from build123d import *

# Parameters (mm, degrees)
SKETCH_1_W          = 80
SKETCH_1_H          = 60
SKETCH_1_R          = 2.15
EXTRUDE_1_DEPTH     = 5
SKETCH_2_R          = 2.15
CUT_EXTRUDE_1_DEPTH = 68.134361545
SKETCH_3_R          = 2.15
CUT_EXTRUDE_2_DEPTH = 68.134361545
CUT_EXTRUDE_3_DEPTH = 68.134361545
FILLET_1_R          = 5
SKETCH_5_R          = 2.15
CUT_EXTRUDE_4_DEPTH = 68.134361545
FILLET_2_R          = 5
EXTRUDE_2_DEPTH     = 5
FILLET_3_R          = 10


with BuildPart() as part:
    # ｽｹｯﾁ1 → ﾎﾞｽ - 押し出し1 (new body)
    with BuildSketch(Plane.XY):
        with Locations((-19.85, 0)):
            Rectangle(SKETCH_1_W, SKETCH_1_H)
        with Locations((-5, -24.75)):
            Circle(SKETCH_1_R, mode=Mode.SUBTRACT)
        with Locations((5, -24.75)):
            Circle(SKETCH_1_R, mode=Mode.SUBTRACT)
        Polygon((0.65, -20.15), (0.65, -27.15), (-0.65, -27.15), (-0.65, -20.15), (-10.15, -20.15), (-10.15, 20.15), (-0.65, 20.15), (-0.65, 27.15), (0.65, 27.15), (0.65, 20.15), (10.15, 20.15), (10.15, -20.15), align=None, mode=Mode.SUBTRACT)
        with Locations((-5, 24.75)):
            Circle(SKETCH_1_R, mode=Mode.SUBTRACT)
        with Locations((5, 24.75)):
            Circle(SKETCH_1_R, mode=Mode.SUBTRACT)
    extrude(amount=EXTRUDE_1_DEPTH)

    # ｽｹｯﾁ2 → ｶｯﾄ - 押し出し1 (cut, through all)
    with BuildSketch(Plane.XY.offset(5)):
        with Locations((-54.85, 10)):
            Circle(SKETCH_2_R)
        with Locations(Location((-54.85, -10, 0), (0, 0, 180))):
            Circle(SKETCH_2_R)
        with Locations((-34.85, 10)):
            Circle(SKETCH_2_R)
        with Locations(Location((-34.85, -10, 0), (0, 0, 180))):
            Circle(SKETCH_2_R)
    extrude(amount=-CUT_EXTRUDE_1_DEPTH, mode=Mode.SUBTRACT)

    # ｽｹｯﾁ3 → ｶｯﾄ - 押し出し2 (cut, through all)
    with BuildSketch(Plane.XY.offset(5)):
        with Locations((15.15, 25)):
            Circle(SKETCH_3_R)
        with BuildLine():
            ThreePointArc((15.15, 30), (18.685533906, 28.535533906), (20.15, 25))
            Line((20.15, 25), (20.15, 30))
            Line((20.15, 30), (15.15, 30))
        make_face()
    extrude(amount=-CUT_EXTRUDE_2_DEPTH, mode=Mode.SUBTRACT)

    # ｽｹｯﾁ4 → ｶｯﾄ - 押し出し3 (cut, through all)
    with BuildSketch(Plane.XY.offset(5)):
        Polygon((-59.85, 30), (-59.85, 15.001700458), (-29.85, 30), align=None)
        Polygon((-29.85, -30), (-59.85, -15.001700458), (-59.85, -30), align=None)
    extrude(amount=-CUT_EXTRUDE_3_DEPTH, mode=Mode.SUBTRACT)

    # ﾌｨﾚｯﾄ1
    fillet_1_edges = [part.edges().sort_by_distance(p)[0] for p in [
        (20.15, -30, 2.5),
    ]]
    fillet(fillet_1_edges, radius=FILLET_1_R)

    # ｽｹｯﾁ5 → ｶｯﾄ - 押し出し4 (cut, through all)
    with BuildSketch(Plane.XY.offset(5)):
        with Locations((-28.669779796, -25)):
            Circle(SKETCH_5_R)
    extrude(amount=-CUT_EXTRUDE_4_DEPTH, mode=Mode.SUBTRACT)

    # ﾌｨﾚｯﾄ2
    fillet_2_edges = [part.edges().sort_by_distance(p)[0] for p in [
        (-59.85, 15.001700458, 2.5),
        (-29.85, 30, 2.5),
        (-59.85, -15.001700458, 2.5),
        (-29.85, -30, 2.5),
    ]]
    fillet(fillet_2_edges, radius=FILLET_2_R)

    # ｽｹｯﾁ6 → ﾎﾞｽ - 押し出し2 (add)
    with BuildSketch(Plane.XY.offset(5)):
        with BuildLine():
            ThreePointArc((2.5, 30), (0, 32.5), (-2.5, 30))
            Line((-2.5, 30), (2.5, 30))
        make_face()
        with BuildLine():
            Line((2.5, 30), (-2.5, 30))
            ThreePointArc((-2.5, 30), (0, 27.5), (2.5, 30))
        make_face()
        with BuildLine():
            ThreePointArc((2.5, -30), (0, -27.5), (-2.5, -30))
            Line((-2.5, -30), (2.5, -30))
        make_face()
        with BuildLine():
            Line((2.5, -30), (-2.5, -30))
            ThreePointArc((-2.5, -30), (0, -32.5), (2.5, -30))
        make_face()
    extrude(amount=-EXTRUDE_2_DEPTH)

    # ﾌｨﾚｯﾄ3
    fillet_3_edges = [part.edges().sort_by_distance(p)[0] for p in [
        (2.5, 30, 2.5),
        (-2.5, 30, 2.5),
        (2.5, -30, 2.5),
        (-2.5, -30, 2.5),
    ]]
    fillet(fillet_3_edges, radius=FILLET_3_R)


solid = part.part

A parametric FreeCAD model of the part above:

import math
import FreeCAD as App
import Part
import Sketcher
from FreeCAD import Vector


def edges_at(feature, points):
    """Names of the edges that pass closest to the given points."""
    edges = feature.Shape.Edges
    near = lambda p: min(range(len(edges)), key=lambda i: edges[i].distToShape(Part.Vertex(*p))[0])
    return sorted({f"Edge{near(p) + 1}" for p in points})

doc = App.newDocument("Part")
body = doc.addObject("PartDesign::Body", "Body")

# Sketch on XY plane
sketch1 = doc.addObject("Sketcher::SketchObject", "Sketch")
body.addObject(sketch1)
sketch1.AttachmentSupport = (doc.XY_Plane, [""])
sketch1.MapMode = "FlatFace"
sketch1.addGeometry([
    Part.LineSegment(Vector(-59.9, 30, 0), Vector(-59.9, -30, 0)),  # 0
    Part.LineSegment(Vector(-59.9, -30, 0), Vector(20.1, -30, 0)),  # 1
    Part.LineSegment(Vector(20.1, -30, 0), Vector(20.1, 30, 0)),  # 2
    Part.LineSegment(Vector(20.1, 30, 0), Vector(-59.9, 30, 0)),  # 3
    Part.Circle(Vector(-5, -24.8, 0), Vector(0, 0, 1), 2.1),  # 4
    Part.Circle(Vector(5, -24.8, 0), Vector(0, 0, 1), 2.1),  # 5
    Part.Circle(Vector(-5, 24.8, 0), Vector(0, 0, 1), 2.1),  # 6
    Part.LineSegment(Vector(10.2, -20.1, 0), Vector(0.7, -20.1, 0)),  # 7
    Part.LineSegment(Vector(0.7, -20.1, 0), Vector(0.7, -27.1, 0)),  # 8
    Part.LineSegment(Vector(0.7, -27.1, 0), Vector(-0.7, -27.1, 0)),  # 9
    Part.LineSegment(Vector(-0.7, -27.1, 0), Vector(-0.7, -20.1, 0)),  # 10
    Part.LineSegment(Vector(-0.7, -20.1, 0), Vector(-10.2, -20.1, 0)),  # 11
    Part.LineSegment(Vector(-10.2, -20.1, 0), Vector(-10.2, 20.1, 0)),  # 12
    Part.LineSegment(Vector(-10.2, 20.1, 0), Vector(-0.7, 20.1, 0)),  # 13
    Part.LineSegment(Vector(-0.7, 20.1, 0), Vector(-0.7, 27.1, 0)),  # 14
    Part.LineSegment(Vector(-0.7, 27.1, 0), Vector(0.7, 27.1, 0)),  # 15
    Part.LineSegment(Vector(0.7, 27.1, 0), Vector(0.7, 20.1, 0)),  # 16
    Part.LineSegment(Vector(0.7, 20.1, 0), Vector(10.2, 20.1, 0)),  # 17
    Part.LineSegment(Vector(10.2, 20.1, 0), Vector(10.2, -20.1, 0)),  # 18
    Part.Circle(Vector(5, 24.8, 0), Vector(0, 0, 1), 2.1),  # 19
], False)
sketch1.addConstraint([
    Sketcher.Constraint("Coincident", 0, 2, 1, 1),
    Sketcher.Constraint("Coincident", 1, 2, 2, 1),
    Sketcher.Constraint("Coincident", 2, 2, 3, 1),
    Sketcher.Constraint("Coincident", 3, 2, 0, 1),
    Sketcher.Constraint("Coincident", 7, 2, 8, 1),
    Sketcher.Constraint("Coincident", 8, 2, 9, 1),
    Sketcher.Constraint("Coincident", 9, 2, 10, 1),
    Sketcher.Constraint("Coincident", 10, 2, 11, 1),
    Sketcher.Constraint("Coincident", 11, 2, 12, 1),
    Sketcher.Constraint("Coincident", 12, 2, 13, 1),
    Sketcher.Constraint("Coincident", 13, 2, 14, 1),
    Sketcher.Constraint("Coincident", 14, 2, 15, 1),
    Sketcher.Constraint("Coincident", 15, 2, 16, 1),
    Sketcher.Constraint("Coincident", 16, 2, 17, 1),
    Sketcher.Constraint("Coincident", 17, 2, 18, 1),
    Sketcher.Constraint("Coincident", 18, 2, 7, 1),
    Sketcher.Constraint("Vertical", 0),
    Sketcher.Constraint("Horizontal", 1),
    Sketcher.Constraint("Vertical", 2),
    Sketcher.Constraint("Horizontal", 3),
    Sketcher.Constraint("Horizontal", 7),
    Sketcher.Constraint("Vertical", 8),
    Sketcher.Constraint("Horizontal", 9),
    Sketcher.Constraint("Vertical", 10),
    Sketcher.Constraint("Horizontal", 11),
    Sketcher.Constraint("Vertical", 12),
    Sketcher.Constraint("Horizontal", 13),
    Sketcher.Constraint("Vertical", 14),
    Sketcher.Constraint("Horizontal", 15),
    Sketcher.Constraint("Vertical", 16),
    Sketcher.Constraint("Horizontal", 17),
    Sketcher.Constraint("Vertical", 18),
    Sketcher.Constraint("Equal", 4, 5),
    Sketcher.Constraint("Equal", 5, 6),
    Sketcher.Constraint("Equal", 6, 19),
    Sketcher.Constraint("Symmetric", 5, 3, 6, 3, -1, 1),
    Sketcher.Constraint("Symmetric", 4, 3, 19, 3, -1, 1),
    Sketcher.Constraint("Symmetric", 7, 2, 13, 2, -1, 1),
    Sketcher.Constraint("Symmetric", 9, 2, 15, 2, -1, 1),
    Sketcher.Constraint("Symmetric", 11, 2, 17, 2, -1, 1),
    Sketcher.Constraint("Symmetric", 4, 3, 5, 3, -2),
    Sketcher.Constraint("Symmetric", 7, 2, 10, 2, -2),
    Sketcher.Constraint("Diameter", 4, 4.3),
    Sketcher.Constraint("DistanceX", 1, 1, 1, 2, 80.0),
    Sketcher.Constraint("DistanceY", 0, 2, 0, 1, 60.0),
    Sketcher.Constraint("DistanceY", 8, 2, 8, 1, 7.0),
    Sketcher.Constraint("DistanceX", 7, 2, 7, 1, 9.5),
    Sketcher.Constraint("DistanceX", 9, 2, 9, 1, 1.3),
    Sketcher.Constraint("DistanceY", 12, 1, 12, 2, 40.3),
    Sketcher.Constraint("DistanceX", 4, 3, -1, 1, 5.0),
    Sketcher.Constraint("DistanceY", 0, 2, -1, 1, 30.0),
    Sketcher.Constraint("DistanceY", 4, 3, 6, 3, 49.5),
    Sketcher.Constraint("DistanceX", 7, 2, 1, 2, 19.5),
])
pad1 = doc.addObject("PartDesign::Pad", "Pad")
body.addObject(pad1)
pad1.Profile = sketch1
pad1.Length = 5

# Sketch on XY plane
sketch2 = doc.addObject("Sketcher::SketchObject", "Sketch001")
body.addObject(sketch2)
sketch2.AttachmentSupport = (doc.XY_Plane, [""])
sketch2.MapMode = "FlatFace"
sketch2.AttachmentOffset = App.Placement(Vector(0, 0, 5), App.Rotation())
sketch2.addGeometry([
    Part.Circle(Vector(-54.9, 10, 0), Vector(0, 0, 1), 2.1),
    Part.Circle(Vector(-54.9, -10, 0), Vector(0, 0, 1), 2.1),
    Part.Circle(Vector(-34.9, 10, 0), Vector(0, 0, 1), 2.1),
    Part.Circle(Vector(-34.9, -10, 0), Vector(0, 0, 1), 2.1),
], False)
sketch2.addConstraint([
    Sketcher.Constraint("Equal", 0, 1),
    Sketcher.Constraint("Equal", 1, 2),
    Sketcher.Constraint("Equal", 2, 3),
    Sketcher.Constraint("Symmetric", 0, 3, 1, 3, -1),
    Sketcher.Constraint("Symmetric", 2, 3, 3, 3, -1),
    Sketcher.Constraint("Horizontal", 0, 3, 2, 3),
    Sketcher.Constraint("Diameter", 0, 4.3),
    Sketcher.Constraint("DistanceY", -1, 1, 0, 3, 10.0),
    Sketcher.Constraint("DistanceX", 0, 3, 2, 3, 20.0),
    Sketcher.Constraint("DistanceX", 0, 3, -1, 1, 54.85),
])
pocket1 = doc.addObject("PartDesign::Pocket", "Pocket")
body.addObject(pocket1)
pocket1.Profile = sketch2
pocket1.Type = "ThroughAll"

# Sketch on XY plane
sketch3 = doc.addObject("Sketcher::SketchObject", "Sketch002")
body.addObject(sketch3)
sketch3.AttachmentSupport = (doc.XY_Plane, [""])
sketch3.MapMode = "FlatFace"
sketch3.AttachmentOffset = App.Placement(Vector(0, 0, 5), App.Rotation())
sketch3.addGeometry([
    Part.Circle(Vector(15.2, 25, 0), Vector(0, 0, 1), 2.1),
    Part.ArcOfCircle(Part.Circle(Vector(15.2, 25, 0), Vector(0, 0, 1), 5), math.radians(0), math.radians(90)),
    Part.LineSegment(Vector(20.1, 25, 0), Vector(20.1, 30, 0)),
    Part.LineSegment(Vector(20.1, 30, 0), Vector(15.2, 30, 0)),
], False)
sketch3.addConstraint([
    Sketcher.Constraint("Tangent", 1, 1, 2, 1),
    Sketcher.Constraint("Coincident", 2, 2, 3, 1),
    Sketcher.Constraint("Tangent", 3, 2, 1, 2),
    Sketcher.Constraint("Vertical", 2),
    Sketcher.Constraint("Horizontal", 3),
    Sketcher.Constraint("Coincident", 1, 3, 0, 3),
    Sketcher.Constraint("Radius", 1, 5.0),
    Sketcher.Constraint("Diameter", 0, 4.3),
    Sketcher.Constraint("DistanceY", -1, 1, 0, 3, 25.0),
    Sketcher.Constraint("DistanceX", -1, 1, 0, 3, 15.15),
])
pocket2 = doc.addObject("PartDesign::Pocket", "Pocket001")
body.addObject(pocket2)
pocket2.Profile = sketch3
pocket2.Type = "ThroughAll"

# Sketch on XY plane
sketch4 = doc.addObject("Sketcher::SketchObject", "Sketch003")
body.addObject(sketch4)
sketch4.AttachmentSupport = (doc.XY_Plane, [""])
sketch4.MapMode = "FlatFace"
sketch4.AttachmentOffset = App.Placement(Vector(0, 0, 5), App.Rotation())
sketch4.addGeometry([
    Part.LineSegment(Vector(-60, 30, 0), Vector(-60, 15, 0)),  # 0
    Part.LineSegment(Vector(-60, 15, 0), Vector(-30, 30, 0)),  # 1
    Part.LineSegment(Vector(-30, 30, 0), Vector(-60, 30, 0)),  # 2
    Part.LineSegment(Vector(-30, -30, 0), Vector(-60, -15, 0)),  # 3
    Part.LineSegment(Vector(-60, -15, 0), Vector(-60, -30, 0)),  # 4
    Part.LineSegment(Vector(-60, -30, 0), Vector(-30, -30, 0)),  # 5
], False)
sketch4.addConstraint([
    Sketcher.Constraint("Coincident", 0, 2, 1, 1),
    Sketcher.Constraint("Coincident", 1, 2, 2, 1),
    Sketcher.Constraint("Coincident", 2, 2, 0, 1),
    Sketcher.Constraint("Coincident", 3, 2, 4, 1),
    Sketcher.Constraint("Coincident", 4, 2, 5, 1),
    Sketcher.Constraint("Coincident", 5, 2, 3, 1),
    Sketcher.Constraint("Vertical", 0),
    Sketcher.Constraint("Horizontal", 2),
    Sketcher.Constraint("Vertical", 4),
    Sketcher.Constraint("Horizontal", 5),
    Sketcher.Constraint("Symmetric", 0, 2, 3, 2, -1),
    Sketcher.Constraint("Symmetric", 1, 2, 5, 2, -1),
    Sketcher.Constraint("DistanceX", 2, 2, 2, 1, 30.0),
    Sketcher.Constraint("DistanceY", -1, 1, 1, 2, 30.0),
    Sketcher.Constraint("DistanceX", 0, 2, -1, 1, 59.85),
    Sketcher.Constraint("DistanceY", 0, 2, 0, 1, 14.9983),
])
pocket3 = doc.addObject("PartDesign::Pocket", "Pocket002")
body.addObject(pocket3)
pocket3.Profile = sketch4
pocket3.Type = "ThroughAll"
doc.recompute()

fillet = doc.addObject("PartDesign::Fillet", "Fillet")
body.addObject(fillet)
fillet.Base = (pocket3, edges_at(pocket3, [(20.15, -30, 2.5)]))
fillet.Radius = 5

# Sketch on XY plane
sketch5 = doc.addObject("Sketcher::SketchObject", "Sketch004")
body.addObject(sketch5)
sketch5.AttachmentSupport = (doc.XY_Plane, [""])
sketch5.MapMode = "FlatFace"
sketch5.AttachmentOffset = App.Placement(Vector(0, 0, 5), App.Rotation())
sketch5.addGeometry(Part.Circle(Vector(-28.7, -25, 0), Vector(0, 0, 1), 2.1), False)
sketch5.addConstraint([
    Sketcher.Constraint("Diameter", 0, 4.3),
    Sketcher.Constraint("DistanceY", 0, 3, -1, 1, 25.0),
    Sketcher.Constraint("DistanceX", 0, 3, -1, 1, 28.66978),
])
pocket4 = doc.addObject("PartDesign::Pocket", "Pocket003")
body.addObject(pocket4)
pocket4.Profile = sketch5
pocket4.Type = "ThroughAll"
doc.recompute()

fillet2 = doc.addObject("PartDesign::Fillet", "Fillet001")
body.addObject(fillet2)
fillet2.Base = (pocket4, edges_at(pocket4, [
    (-59.85, 15.002, 2.5),
    (-29.85, 30, 2.5),
    (-59.85, -15.002, 2.5),
    (-29.85, -30, 2.5),
]))
fillet2.Radius = 5

# Sketch on XY plane
sketch6 = doc.addObject("Sketcher::SketchObject", "Sketch005")
body.addObject(sketch6)
sketch6.AttachmentSupport = (doc.XY_Plane, [""])
sketch6.MapMode = "FlatFace"
sketch6.AttachmentOffset = App.Placement(Vector(0, 0, 5), App.Rotation())
sketch6.addGeometry([
    Part.Circle(Vector(0, 30, 0), Vector(0, 0, 1), 2.5),
    Part.Circle(Vector(0, -30, 0), Vector(0, 0, 1), 2.5),
], False)
sketch6.addConstraint([
    Sketcher.Constraint("Equal", 0, 1),
    Sketcher.Constraint("Symmetric", 0, 3, 1, 3, -1, 1),
    Sketcher.Constraint("PointOnObject", 0, 3, -2),
    Sketcher.Constraint("Diameter", 0, 5.0),
    Sketcher.Constraint("DistanceY", -1, 1, 0, 3, 30.0),
])
pad2 = doc.addObject("PartDesign::Pad", "Pad001")
body.addObject(pad2)
pad2.Profile = sketch6
pad2.Length = 5
pad2.Reversed = True
doc.recompute()

fillet3 = doc.addObject("PartDesign::Fillet", "Fillet002")
body.addObject(fillet3)
fillet3.Base = (pad2, edges_at(pad2, [
    (2.5, 30, 2.5),
    (-2.5, 30, 2.5),
    (2.5, -30, 2.5),
    (-2.5, -30, 2.5),
]))
fillet3.Radius = 10

doc.recompute()
